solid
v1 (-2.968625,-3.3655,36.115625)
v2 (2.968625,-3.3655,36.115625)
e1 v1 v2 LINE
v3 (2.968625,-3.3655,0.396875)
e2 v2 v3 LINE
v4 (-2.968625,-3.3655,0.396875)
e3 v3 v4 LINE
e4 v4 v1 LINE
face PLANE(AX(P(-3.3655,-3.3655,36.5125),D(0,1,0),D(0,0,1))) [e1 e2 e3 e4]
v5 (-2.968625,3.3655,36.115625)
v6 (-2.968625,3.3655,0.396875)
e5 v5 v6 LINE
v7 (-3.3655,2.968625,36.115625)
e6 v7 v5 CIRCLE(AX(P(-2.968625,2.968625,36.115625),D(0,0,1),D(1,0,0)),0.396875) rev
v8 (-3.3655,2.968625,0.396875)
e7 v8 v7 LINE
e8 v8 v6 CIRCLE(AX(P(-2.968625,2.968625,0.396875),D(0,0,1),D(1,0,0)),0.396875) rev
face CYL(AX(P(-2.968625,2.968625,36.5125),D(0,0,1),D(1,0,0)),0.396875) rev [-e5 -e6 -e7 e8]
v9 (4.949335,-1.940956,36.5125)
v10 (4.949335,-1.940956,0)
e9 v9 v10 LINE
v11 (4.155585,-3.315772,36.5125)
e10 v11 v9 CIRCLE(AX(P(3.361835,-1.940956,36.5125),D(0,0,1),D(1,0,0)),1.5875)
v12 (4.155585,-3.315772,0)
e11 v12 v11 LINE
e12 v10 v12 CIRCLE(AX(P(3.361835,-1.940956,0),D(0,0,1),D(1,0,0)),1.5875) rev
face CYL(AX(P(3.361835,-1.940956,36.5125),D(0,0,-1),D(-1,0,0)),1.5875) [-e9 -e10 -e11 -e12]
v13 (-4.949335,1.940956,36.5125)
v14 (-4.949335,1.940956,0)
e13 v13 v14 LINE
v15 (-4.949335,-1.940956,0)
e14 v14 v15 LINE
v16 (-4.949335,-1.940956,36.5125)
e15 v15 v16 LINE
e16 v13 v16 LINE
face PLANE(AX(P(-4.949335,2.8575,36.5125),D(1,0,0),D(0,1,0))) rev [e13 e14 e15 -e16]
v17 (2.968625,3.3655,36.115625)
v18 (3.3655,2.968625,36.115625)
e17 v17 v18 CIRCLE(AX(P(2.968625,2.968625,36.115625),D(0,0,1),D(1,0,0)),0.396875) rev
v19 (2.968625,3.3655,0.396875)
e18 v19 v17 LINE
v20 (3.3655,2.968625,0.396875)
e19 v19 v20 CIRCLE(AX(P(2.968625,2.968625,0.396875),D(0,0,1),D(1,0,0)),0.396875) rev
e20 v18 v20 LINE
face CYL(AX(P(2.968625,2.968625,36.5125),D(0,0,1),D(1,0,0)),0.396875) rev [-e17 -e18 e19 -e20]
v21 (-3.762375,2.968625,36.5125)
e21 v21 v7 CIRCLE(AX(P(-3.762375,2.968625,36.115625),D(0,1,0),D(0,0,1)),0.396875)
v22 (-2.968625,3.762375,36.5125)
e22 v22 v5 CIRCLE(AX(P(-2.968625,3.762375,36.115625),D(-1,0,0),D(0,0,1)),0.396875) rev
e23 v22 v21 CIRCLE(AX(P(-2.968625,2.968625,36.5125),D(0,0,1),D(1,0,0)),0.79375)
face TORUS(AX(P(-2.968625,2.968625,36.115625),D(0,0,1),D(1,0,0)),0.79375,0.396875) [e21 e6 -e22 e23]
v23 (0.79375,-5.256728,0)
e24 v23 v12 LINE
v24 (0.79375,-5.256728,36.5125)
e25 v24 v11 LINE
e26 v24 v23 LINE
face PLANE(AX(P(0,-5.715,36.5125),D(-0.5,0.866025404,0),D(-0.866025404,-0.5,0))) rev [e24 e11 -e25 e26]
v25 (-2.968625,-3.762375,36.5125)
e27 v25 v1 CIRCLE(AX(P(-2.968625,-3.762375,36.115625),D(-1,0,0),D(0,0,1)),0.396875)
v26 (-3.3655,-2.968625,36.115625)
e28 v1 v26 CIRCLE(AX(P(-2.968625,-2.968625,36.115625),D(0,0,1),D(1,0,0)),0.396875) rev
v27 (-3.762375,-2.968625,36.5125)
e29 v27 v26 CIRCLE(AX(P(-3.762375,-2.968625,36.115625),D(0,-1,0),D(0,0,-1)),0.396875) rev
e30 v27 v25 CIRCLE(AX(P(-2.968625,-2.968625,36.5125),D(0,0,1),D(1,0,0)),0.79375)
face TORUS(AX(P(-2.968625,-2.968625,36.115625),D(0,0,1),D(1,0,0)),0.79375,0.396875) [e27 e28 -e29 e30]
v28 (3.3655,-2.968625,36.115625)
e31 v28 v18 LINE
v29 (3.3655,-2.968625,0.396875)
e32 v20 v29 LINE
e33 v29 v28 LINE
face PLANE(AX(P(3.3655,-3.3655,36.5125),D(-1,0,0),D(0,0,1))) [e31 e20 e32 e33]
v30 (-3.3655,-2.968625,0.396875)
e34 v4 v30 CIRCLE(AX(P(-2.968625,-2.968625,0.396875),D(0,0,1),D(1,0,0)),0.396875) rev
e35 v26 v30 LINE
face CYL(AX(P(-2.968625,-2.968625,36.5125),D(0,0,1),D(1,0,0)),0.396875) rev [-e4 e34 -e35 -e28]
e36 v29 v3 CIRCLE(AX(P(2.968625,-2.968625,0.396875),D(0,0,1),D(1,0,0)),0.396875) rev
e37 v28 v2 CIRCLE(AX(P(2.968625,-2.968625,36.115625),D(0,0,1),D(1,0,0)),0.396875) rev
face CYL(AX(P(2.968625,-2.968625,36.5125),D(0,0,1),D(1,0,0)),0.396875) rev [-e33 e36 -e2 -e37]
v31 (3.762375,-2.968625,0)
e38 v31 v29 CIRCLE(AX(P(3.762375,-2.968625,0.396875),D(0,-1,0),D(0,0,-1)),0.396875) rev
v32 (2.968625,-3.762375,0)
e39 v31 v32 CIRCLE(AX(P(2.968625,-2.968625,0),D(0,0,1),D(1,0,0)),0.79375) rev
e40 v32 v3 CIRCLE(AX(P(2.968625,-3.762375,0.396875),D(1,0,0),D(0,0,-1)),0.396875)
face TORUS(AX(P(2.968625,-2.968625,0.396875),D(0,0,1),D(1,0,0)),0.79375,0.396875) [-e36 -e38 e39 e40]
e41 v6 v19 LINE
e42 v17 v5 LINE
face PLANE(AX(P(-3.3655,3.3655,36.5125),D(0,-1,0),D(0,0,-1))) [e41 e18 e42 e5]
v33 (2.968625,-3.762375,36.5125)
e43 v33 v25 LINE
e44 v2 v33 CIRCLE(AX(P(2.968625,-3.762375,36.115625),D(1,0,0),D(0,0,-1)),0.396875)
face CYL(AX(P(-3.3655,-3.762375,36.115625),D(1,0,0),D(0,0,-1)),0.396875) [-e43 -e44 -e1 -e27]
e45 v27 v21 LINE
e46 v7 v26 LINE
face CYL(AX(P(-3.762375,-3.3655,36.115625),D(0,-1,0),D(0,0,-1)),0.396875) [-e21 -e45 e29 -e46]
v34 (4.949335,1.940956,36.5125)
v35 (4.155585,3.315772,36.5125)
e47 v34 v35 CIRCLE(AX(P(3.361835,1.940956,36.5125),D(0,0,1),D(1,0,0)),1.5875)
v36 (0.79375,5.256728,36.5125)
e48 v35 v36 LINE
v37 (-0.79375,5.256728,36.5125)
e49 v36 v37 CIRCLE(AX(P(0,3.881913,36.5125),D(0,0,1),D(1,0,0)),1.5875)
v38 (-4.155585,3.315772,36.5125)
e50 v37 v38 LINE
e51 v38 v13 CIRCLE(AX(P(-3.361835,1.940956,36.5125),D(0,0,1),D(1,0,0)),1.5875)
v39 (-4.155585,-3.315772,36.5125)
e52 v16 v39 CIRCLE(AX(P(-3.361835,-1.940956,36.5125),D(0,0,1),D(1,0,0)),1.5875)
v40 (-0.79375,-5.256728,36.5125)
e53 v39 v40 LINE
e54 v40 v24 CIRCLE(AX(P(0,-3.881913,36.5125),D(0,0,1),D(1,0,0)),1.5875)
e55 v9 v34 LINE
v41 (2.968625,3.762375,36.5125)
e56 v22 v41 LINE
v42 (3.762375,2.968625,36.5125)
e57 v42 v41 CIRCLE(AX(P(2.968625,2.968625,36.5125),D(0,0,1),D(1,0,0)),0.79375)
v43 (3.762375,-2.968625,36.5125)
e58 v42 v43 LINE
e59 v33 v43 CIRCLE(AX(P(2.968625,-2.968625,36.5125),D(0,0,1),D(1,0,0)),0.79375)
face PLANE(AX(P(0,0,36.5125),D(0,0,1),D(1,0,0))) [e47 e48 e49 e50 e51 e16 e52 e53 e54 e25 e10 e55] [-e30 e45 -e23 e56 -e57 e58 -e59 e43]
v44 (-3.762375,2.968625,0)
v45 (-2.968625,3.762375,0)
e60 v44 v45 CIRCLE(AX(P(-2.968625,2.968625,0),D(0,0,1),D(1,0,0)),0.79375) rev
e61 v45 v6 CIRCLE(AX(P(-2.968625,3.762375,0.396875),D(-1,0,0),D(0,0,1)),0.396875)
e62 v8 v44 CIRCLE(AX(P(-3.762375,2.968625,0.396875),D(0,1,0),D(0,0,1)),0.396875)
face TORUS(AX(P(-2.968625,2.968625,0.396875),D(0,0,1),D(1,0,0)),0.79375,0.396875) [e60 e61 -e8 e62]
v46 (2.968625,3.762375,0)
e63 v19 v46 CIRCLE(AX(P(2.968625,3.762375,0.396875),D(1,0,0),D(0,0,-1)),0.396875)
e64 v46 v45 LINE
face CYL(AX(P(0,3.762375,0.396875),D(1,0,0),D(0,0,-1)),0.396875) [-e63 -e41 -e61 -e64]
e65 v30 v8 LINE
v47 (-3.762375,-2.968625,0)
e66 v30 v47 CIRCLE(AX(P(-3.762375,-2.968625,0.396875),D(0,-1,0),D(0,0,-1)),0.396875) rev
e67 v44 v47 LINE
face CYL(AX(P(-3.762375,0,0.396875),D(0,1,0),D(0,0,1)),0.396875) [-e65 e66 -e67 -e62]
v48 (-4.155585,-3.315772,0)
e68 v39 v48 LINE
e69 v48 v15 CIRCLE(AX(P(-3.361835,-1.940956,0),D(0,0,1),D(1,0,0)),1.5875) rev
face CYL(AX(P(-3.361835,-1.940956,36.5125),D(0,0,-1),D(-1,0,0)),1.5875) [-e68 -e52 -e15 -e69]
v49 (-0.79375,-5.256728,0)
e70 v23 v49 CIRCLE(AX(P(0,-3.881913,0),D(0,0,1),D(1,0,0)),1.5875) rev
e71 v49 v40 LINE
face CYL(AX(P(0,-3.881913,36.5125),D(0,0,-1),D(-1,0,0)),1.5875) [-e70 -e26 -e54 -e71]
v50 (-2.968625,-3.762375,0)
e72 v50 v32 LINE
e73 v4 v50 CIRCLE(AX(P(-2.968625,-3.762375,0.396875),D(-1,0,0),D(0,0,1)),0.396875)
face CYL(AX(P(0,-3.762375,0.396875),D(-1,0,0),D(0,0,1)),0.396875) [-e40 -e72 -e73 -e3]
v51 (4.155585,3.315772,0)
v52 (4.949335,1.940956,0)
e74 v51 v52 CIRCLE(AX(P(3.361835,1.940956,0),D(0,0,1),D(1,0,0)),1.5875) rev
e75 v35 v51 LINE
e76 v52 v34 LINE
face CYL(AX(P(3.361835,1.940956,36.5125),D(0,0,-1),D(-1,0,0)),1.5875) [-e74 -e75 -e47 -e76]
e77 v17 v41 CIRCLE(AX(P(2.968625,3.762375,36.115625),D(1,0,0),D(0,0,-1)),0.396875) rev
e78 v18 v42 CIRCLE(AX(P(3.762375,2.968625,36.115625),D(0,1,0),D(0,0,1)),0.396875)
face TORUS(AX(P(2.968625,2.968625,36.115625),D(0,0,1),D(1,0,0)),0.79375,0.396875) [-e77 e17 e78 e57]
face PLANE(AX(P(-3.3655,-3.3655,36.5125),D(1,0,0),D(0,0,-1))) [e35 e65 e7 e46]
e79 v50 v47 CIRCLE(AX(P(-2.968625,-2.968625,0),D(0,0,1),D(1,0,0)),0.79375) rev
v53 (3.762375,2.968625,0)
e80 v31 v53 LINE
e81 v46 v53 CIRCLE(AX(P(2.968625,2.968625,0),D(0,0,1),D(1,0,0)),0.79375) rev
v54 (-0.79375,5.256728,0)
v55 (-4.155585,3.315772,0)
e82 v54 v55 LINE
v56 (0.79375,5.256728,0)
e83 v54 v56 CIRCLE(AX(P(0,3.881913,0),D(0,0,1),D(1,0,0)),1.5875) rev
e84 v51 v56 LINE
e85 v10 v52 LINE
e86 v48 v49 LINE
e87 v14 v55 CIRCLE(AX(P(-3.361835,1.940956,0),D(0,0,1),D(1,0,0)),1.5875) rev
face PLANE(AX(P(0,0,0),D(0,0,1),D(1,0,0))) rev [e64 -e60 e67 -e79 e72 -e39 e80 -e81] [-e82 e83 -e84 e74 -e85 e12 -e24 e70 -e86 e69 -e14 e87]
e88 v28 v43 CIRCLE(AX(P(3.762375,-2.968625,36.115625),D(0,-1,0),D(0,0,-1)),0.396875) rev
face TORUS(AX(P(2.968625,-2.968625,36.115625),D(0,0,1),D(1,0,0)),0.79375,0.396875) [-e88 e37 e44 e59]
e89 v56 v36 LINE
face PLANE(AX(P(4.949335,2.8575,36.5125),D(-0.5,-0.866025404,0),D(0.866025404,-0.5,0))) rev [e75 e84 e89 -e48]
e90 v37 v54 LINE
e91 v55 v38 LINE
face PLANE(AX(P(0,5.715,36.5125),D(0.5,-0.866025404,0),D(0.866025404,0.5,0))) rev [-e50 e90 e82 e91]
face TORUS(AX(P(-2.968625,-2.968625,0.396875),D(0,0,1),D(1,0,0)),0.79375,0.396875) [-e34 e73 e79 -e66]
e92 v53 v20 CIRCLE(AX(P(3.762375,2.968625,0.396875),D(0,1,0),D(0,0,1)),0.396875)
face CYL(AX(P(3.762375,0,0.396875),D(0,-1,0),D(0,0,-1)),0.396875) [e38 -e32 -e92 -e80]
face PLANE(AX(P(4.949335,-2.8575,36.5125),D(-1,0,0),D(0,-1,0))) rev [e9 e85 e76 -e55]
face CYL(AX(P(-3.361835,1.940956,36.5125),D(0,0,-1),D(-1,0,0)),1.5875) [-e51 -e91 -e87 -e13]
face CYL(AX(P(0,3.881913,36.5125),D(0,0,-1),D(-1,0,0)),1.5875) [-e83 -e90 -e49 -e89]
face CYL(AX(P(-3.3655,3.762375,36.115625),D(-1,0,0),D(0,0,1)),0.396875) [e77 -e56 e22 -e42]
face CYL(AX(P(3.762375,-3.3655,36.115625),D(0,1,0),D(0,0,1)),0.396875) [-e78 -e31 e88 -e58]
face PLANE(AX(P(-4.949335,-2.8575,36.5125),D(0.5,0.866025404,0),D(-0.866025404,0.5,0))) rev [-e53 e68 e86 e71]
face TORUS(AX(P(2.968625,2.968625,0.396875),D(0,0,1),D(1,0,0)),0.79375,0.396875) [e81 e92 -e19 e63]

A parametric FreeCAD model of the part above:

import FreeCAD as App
import Part
import Sketcher
from FreeCAD import Vector
Q = App.Units.Quantity


def edges_at(feature, points):
    """Names of the edges that pass closest to the given points."""
    edges = feature.Shape.Edges
    near = lambda p: min(range(len(edges)), key=lambda i: edges[i].distToShape(Part.Vertex(*p))[0])
    return sorted({f"Edge{near(p) + 1}" for p in points})


def add_polygon(sketch, points):
    """Adds a closed chain of lines whose ends are joined by coincident constraints."""
    first, n = sketch.GeometryCount, len(points)
    for a, b in zip(points, points[1:] + points[:1]):
        sketch.addGeometry(Part.LineSegment(App.Vector(*a, 0), App.Vector(*b, 0)), False)
    for i in range(n):
        sketch.addConstraint(Sketcher.Constraint("Coincident", first + i, 2, first + (i + 1) % n, 1))

doc = App.newDocument("Part")
body = doc.addObject("PartDesign::Body", "Body")

sketch1 = doc.addObject("Sketcher::SketchObject", "Sketch")
body.addObject(sketch1)
sketch1.AttachmentSupport = (doc.XY_Plane, [""])
sketch1.MapMode = "FlatFace"
add_polygon(sketch1, [(5, -3), (5, 3), (0, 6), (-5, 3), (-5, -3), (0, -6)])
add_polygon(sketch1, [(3, -3), (-3, -3), (-3, 3), (3, 3)])
sketch1.addConstraint(Sketcher.Constraint("Vertical", 0))
sketch1.addConstraint(Sketcher.Constraint("Vertical", 3))
sketch1.addConstraint(Sketcher.Constraint("Horizontal", 6))
sketch1.addConstraint(Sketcher.Constraint("Vertical", 7))
sketch1.addConstraint(Sketcher.Constraint("Horizontal", 8))
sketch1.addConstraint(Sketcher.Constraint("Vertical", 9))
sketch1.addConstraint(Sketcher.Constraint("Symmetric", 0, 2, 3, 2, -1, 1))
sketch1.addConstraint(Sketcher.Constraint("Symmetric", 1, 2, 4, 2, -1, 1))
sketch1.addConstraint(Sketcher.Constraint("Symmetric", 6, 2, 8, 2, -1, 1))
sketch1.addConstraint(Sketcher.Constraint("PointOnObject", 1, 2, -2))
sketch1.addConstraint(Sketcher.Constraint("Parallel", 2, 5))
sketch1.addConstraint(Sketcher.Constraint("Horizontal", 0, 2, 2, 2))
sketch1.addConstraint(Sketcher.Constraint("Equal", 8, 7))
sketch1.addConstraint(Sketcher.Constraint("Angle", 1, Q("150 deg")))
sketch1.addConstraint(Sketcher.Constraint("DistanceX", 6, 2, 6, 1, Q("0.265 in")))
sketch1.addConstraint(Sketcher.Constraint("DistanceY", 0, 1, 0, 2, Q("0.225 in")))
sketch1.addConstraint(Sketcher.Constraint("DistanceY", 4, 2, 1, 2, Q("0.45 in")))
pad1 = doc.addObject("PartDesign::Pad", "Pad")
body.addObject(pad1)
pad1.Profile = sketch1
pad1.Length = Q("1.4375 in")
doc.recompute()

fillet = doc.addObject("PartDesign::Fillet", "Fillet")
body.addObject(fillet)
fillet.Base = (pad1, edges_at(pad1, [
    (3.365, 0, 0),
    (3.365, -3.365, 18.256),
    (0, 3.365, 0),
    (3.365, 3.365, 18.256),
    (-3.365, 0, 0),
    (-3.365, 3.365, 18.256),
    (0, -3.365, 0),
    (-3.365, -3.365, 18.256),
    (3.365, 0, 36.513),
    (0, 3.365, 36.513),
    (-3.365, 0, 36.513),
    (0, -3.365, 36.513),
]))
fillet.Radius = Q("0.015625 in")
doc.recompute()

fillet2 = doc.addObject("PartDesign::Fillet", "Fillet001")
body.addObject(fillet2)
fillet2.Base = (fillet, edges_at(fillet, [
    (0, -5.715, 18.256),
    (-4.949, -2.857, 18.256),
    (-4.949, 2.857, 18.256),
    (0, 5.715, 18.256),
    (4.949, 2.857, 18.256),
    (4.949, -2.857, 18.256),
]))
fillet2.Radius = Q("0.0625 in")

doc.recompute()
